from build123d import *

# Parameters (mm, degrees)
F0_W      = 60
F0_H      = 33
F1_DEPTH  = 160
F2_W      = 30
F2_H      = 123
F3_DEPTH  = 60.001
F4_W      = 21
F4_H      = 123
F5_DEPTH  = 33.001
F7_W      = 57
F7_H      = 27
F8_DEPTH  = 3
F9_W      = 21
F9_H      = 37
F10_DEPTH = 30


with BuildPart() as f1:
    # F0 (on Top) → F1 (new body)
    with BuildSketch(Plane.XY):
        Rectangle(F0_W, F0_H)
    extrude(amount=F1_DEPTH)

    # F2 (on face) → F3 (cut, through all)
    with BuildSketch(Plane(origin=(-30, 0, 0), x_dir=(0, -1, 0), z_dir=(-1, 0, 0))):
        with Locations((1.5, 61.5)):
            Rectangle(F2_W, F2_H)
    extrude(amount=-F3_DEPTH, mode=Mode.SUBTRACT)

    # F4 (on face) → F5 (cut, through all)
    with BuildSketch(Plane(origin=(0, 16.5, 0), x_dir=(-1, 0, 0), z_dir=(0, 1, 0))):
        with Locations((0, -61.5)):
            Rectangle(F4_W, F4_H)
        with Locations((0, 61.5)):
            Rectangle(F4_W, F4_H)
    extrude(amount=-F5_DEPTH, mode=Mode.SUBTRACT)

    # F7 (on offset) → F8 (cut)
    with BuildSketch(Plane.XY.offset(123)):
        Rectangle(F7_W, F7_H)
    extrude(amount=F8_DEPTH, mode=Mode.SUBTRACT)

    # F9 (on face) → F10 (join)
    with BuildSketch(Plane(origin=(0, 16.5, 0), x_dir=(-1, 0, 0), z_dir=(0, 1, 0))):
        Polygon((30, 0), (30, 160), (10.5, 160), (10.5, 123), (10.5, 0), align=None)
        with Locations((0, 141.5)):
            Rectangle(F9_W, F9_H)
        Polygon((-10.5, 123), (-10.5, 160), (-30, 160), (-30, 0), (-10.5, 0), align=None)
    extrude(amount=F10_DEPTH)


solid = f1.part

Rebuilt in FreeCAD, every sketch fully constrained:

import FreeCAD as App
import Part
import Sketcher

V = App.Vector
Q = App.Units.Quantity

doc = App.newDocument("Part")
body = doc.addObject("PartDesign::Body", "Body")

# Sketch on XY plane
sketch1 = body.newObject("Sketcher::SketchObject", "Sketch")
sketch1.AttachmentSupport = (doc.getObject("XY_Plane"), [""])
sketch1.MapMode = "FlatFace"
sketch1.addGeometry([
    Part.LineSegment(V(-30, 16, 0), V(-30, -16, 0)),
    Part.LineSegment(V(-30, -16, 0), V(30, -16, 0)),
    Part.LineSegment(V(30, -16, 0), V(30, 16, 0)),
    Part.LineSegment(V(30, 16, 0), V(-30, 16, 0)),
], False)
sketch1.addConstraint([
    Sketcher.Constraint("Coincident", 0, 2, 1, 1),
    Sketcher.Constraint("Coincident", 1, 2, 2, 1),
    Sketcher.Constraint("Coincident", 2, 2, 3, 1),
    Sketcher.Constraint("Coincident", 3, 2, 0, 1),
    Sketcher.Constraint("Vertical", 0),
    Sketcher.Constraint("Horizontal", 1),
    Sketcher.Constraint("Vertical", 2),
    Sketcher.Constraint("Horizontal", 3),
    Sketcher.Constraint("Symmetric", 0, 2, 2, 2, -1, 1),
    Sketcher.Constraint("DistanceX", 1, 1, 1, 2, Q("60 mm")),
    Sketcher.Constraint("DistanceY", 0, 2, 0, 1, Q("33 mm")),
])
pad1 = body.newObject("PartDesign::Pad", "Pad")
pad1.Profile = sketch1
pad1.Length = 160

# Sketch on YZ plane
sketch2 = body.newObject("Sketcher::SketchObject", "Sketch001")
sketch2.AttachmentSupport = (doc.getObject("YZ_Plane"), [""])
sketch2.MapMode = "FlatFace"
sketch2.AttachmentOffset = App.Placement(V(0, 0, -30), App.Rotation())
sketch2.addGeometry([
    Part.LineSegment(V(14, 123, 0), V(14, 0, 0)),
    Part.LineSegment(V(14, 0, 0), V(-16, 0, 0)),
    Part.LineSegment(V(-16, 0, 0), V(-16, 123, 0)),
    Part.LineSegment(V(-16, 123, 0), V(14, 123, 0)),
], False)
sketch2.addConstraint([
    Sketcher.Constraint("Coincident", 0, 2, 1, 1),
    Sketcher.Constraint("Coincident", 1, 2, 2, 1),
    Sketcher.Constraint("Coincident", 2, 2, 3, 1),
    Sketcher.Constraint("Coincident", 3, 2, 0, 1),
    Sketcher.Constraint("Vertical", 0),
    Sketcher.Constraint("Horizontal", 1),
    Sketcher.Constraint("Vertical", 2),
    Sketcher.Constraint("Horizontal", 3),
    Sketcher.Constraint("PointOnObject", 0, 2, -1),
    Sketcher.Constraint("DistanceX", 1, 2, 1, 1, Q("30 mm")),
    Sketcher.Constraint("DistanceY", 0, 2, 0, 1, Q("123 mm")),
    Sketcher.Constraint("DistanceX", -1, 1, 0, 2, Q("13.5 mm")),
])
pocket1 = body.newObject("PartDesign::Pocket", "Pocket")
pocket1.Profile = sketch2
pocket1.Type = "ThroughAll"
pocket1.Reversed = True

# Sketch on XZ plane
sketch3 = body.newObject("Sketcher::SketchObject", "Sketch002")
sketch3.AttachmentSupport = (doc.getObject("XZ_Plane"), [""])
sketch3.MapMode = "FlatFace"
sketch3.AttachmentOffset = App.Placement(V(0, 0, -16.5), App.Rotation())
sketch3.addGeometry([
    Part.LineSegment(V(10, -123, 0), V(-10, -123, 0)),
    Part.LineSegment(V(-10, -123, 0), V(-10, 123, 0)),
    Part.LineSegment(V(-10, 123, 0), V(10, 123, 0)),
    Part.LineSegment(V(10, 123, 0), V(10, -123, 0)),
], False)
sketch3.addConstraint([
    Sketcher.Constraint("Coincident", 0, 2, 1, 1),
    Sketcher.Constraint("Coincident", 1, 2, 2, 1),
    Sketcher.Constraint("Coincident", 2, 2, 3, 1),
    Sketcher.Constraint("Coincident", 3, 2, 0, 1),
    Sketcher.Constraint("Horizontal", 0),
    Sketcher.Constraint("Vertical", 1),
    Sketcher.Constraint("Horizontal", 2),
    Sketcher.Constraint("Vertical", 3),
    Sketcher.Constraint("Symmetric", 0, 2, 2, 2, -1, 1),
    Sketcher.Constraint("DistanceX", 0, 2, 0, 1, Q("21 mm")),
    Sketcher.Constraint("DistanceY", 1, 1, 1, 2, Q("246 mm")),
])
pocket2 = body.newObject("PartDesign::Pocket", "Pocket001")
pocket2.Profile = sketch3
pocket2.Type = "ThroughAll"
pocket2.Reversed = True

# Sketch on XY plane
sketch4 = body.newObject("Sketcher::SketchObject", "Sketch003")
sketch4.AttachmentSupport = (doc.getObject("XY_Plane"), [""])
sketch4.MapMode = "FlatFace"
sketch4.AttachmentOffset = App.Placement(V(0, 0, 123), App.Rotation())
sketch4.addGeometry([
    Part.LineSegment(V(-28, 14, 0), V(-28, -14, 0)),
    Part.LineSegment(V(-28, -14, 0), V(28, -14, 0)),
    Part.LineSegment(V(28, -14, 0), V(28, 14, 0)),
    Part.LineSegment(V(28, 14, 0), V(-28, 14, 0)),
], False)
sketch4.addConstraint([
    Sketcher.Constraint("Coincident", 0, 2, 1, 1),
    Sketcher.Constraint("Coincident", 1, 2, 2, 1),
    Sketcher.Constraint("Coincident", 2, 2, 3, 1),
    Sketcher.Constraint("Coincident", 3, 2, 0, 1),
    Sketcher.Constraint("Vertical", 0),
    Sketcher.Constraint("Horizontal", 1),
    Sketcher.Constraint("Vertical", 2),
    Sketcher.Constraint("Horizontal", 3),
    Sketcher.Constraint("Symmetric", 0, 2, 2, 2, -1, 1),
    Sketcher.Constraint("DistanceX", 1, 1, 1, 2, Q("57 mm")),
    Sketcher.Constraint("DistanceY", 0, 2, 0, 1, Q("27 mm")),
])
pocket3 = body.newObject("PartDesign::Pocket", "Pocket002")
pocket3.Profile = sketch4
pocket3.Length = 3
pocket3.Reversed = True

# Sketch on XZ plane
sketch5 = body.newObject("Sketcher::SketchObject", "Sketch004")
sketch5.AttachmentSupport = (doc.getObject("XZ_Plane"), [""])
sketch5.MapMode = "FlatFace"
sketch5.AttachmentOffset = App.Placement(V(0, 0, -16.5), App.Rotation())
sketch5.addGeometry([
    Part.LineSegment(V(-30, 0, 0), V(-30, 160, 0)),  # 0
    Part.LineSegment(V(-30, 160, 0), V(30, 160, 0)),  # 1
    Part.LineSegment(V(30, 160, 0), V(30, 0, 0)),  # 2
    Part.LineSegment(V(30, 0, 0), V(10, 0, 0)),  # 3
    Part.LineSegment(V(10, 0, 0), V(10, 123, 0)),  # 4
    Part.LineSegment(V(10, 123, 0), V(-10, 123, 0)),  # 5
    Part.LineSegment(V(-10, 123, 0), V(-10, 0, 0)),  # 6
    Part.LineSegment(V(-10, 0, 0), V(-30, 0, 0)),  # 7
], False)
sketch5.addConstraint([
    Sketcher.Constraint("Coincident", 0, 2, 1, 1),
    Sketcher.Constraint("Coincident", 1, 2, 2, 1),
    Sketcher.Constraint("Coincident", 2, 2, 3, 1),
    Sketcher.Constraint("Coincident", 3, 2, 4, 1),
    Sketcher.Constraint("Coincident", 4, 2, 5, 1),
    Sketcher.Constraint("Coincident", 5, 2, 6, 1),
    Sketcher.Constraint("Coincident", 6, 2, 7, 1),
    Sketcher.Constraint("Coincident", 7, 2, 0, 1),
    Sketcher.Constraint("Vertical", 0),
    Sketcher.Constraint("Horizontal", 1),
    Sketcher.Constraint("Vertical", 2),
    Sketcher.Constraint("Horizontal", 3),
    Sketcher.Constraint("Vertical", 4),
    Sketcher.Constraint("Horizontal", 5),
    Sketcher.Constraint("Vertical", 6),
    Sketcher.Constraint("Horizontal", 7),
    Sketcher.Constraint("Symmetric", 3, 2, 6, 2, -1, 1),
    Sketcher.Constraint("Symmetric", 2, 2, 7, 2, -2),
    Sketcher.Constraint("DistanceX", 1, 1, 1, 2, Q("60 mm")),
    Sketcher.Constraint("DistanceX", 5, 2, 5, 1, Q("21 mm")),
    Sketcher.Constraint("DistanceY", 0, 1, 0, 2, Q("160 mm")),
    Sketcher.Constraint("DistanceY", 4, 1, 4, 2, Q("123 mm")),
])
pad2 = body.newObject("PartDesign::Pad", "Pad001")
pad2.Profile = sketch5
pad2.Length = 30
pad2.Reversed = True

doc.recompute()
